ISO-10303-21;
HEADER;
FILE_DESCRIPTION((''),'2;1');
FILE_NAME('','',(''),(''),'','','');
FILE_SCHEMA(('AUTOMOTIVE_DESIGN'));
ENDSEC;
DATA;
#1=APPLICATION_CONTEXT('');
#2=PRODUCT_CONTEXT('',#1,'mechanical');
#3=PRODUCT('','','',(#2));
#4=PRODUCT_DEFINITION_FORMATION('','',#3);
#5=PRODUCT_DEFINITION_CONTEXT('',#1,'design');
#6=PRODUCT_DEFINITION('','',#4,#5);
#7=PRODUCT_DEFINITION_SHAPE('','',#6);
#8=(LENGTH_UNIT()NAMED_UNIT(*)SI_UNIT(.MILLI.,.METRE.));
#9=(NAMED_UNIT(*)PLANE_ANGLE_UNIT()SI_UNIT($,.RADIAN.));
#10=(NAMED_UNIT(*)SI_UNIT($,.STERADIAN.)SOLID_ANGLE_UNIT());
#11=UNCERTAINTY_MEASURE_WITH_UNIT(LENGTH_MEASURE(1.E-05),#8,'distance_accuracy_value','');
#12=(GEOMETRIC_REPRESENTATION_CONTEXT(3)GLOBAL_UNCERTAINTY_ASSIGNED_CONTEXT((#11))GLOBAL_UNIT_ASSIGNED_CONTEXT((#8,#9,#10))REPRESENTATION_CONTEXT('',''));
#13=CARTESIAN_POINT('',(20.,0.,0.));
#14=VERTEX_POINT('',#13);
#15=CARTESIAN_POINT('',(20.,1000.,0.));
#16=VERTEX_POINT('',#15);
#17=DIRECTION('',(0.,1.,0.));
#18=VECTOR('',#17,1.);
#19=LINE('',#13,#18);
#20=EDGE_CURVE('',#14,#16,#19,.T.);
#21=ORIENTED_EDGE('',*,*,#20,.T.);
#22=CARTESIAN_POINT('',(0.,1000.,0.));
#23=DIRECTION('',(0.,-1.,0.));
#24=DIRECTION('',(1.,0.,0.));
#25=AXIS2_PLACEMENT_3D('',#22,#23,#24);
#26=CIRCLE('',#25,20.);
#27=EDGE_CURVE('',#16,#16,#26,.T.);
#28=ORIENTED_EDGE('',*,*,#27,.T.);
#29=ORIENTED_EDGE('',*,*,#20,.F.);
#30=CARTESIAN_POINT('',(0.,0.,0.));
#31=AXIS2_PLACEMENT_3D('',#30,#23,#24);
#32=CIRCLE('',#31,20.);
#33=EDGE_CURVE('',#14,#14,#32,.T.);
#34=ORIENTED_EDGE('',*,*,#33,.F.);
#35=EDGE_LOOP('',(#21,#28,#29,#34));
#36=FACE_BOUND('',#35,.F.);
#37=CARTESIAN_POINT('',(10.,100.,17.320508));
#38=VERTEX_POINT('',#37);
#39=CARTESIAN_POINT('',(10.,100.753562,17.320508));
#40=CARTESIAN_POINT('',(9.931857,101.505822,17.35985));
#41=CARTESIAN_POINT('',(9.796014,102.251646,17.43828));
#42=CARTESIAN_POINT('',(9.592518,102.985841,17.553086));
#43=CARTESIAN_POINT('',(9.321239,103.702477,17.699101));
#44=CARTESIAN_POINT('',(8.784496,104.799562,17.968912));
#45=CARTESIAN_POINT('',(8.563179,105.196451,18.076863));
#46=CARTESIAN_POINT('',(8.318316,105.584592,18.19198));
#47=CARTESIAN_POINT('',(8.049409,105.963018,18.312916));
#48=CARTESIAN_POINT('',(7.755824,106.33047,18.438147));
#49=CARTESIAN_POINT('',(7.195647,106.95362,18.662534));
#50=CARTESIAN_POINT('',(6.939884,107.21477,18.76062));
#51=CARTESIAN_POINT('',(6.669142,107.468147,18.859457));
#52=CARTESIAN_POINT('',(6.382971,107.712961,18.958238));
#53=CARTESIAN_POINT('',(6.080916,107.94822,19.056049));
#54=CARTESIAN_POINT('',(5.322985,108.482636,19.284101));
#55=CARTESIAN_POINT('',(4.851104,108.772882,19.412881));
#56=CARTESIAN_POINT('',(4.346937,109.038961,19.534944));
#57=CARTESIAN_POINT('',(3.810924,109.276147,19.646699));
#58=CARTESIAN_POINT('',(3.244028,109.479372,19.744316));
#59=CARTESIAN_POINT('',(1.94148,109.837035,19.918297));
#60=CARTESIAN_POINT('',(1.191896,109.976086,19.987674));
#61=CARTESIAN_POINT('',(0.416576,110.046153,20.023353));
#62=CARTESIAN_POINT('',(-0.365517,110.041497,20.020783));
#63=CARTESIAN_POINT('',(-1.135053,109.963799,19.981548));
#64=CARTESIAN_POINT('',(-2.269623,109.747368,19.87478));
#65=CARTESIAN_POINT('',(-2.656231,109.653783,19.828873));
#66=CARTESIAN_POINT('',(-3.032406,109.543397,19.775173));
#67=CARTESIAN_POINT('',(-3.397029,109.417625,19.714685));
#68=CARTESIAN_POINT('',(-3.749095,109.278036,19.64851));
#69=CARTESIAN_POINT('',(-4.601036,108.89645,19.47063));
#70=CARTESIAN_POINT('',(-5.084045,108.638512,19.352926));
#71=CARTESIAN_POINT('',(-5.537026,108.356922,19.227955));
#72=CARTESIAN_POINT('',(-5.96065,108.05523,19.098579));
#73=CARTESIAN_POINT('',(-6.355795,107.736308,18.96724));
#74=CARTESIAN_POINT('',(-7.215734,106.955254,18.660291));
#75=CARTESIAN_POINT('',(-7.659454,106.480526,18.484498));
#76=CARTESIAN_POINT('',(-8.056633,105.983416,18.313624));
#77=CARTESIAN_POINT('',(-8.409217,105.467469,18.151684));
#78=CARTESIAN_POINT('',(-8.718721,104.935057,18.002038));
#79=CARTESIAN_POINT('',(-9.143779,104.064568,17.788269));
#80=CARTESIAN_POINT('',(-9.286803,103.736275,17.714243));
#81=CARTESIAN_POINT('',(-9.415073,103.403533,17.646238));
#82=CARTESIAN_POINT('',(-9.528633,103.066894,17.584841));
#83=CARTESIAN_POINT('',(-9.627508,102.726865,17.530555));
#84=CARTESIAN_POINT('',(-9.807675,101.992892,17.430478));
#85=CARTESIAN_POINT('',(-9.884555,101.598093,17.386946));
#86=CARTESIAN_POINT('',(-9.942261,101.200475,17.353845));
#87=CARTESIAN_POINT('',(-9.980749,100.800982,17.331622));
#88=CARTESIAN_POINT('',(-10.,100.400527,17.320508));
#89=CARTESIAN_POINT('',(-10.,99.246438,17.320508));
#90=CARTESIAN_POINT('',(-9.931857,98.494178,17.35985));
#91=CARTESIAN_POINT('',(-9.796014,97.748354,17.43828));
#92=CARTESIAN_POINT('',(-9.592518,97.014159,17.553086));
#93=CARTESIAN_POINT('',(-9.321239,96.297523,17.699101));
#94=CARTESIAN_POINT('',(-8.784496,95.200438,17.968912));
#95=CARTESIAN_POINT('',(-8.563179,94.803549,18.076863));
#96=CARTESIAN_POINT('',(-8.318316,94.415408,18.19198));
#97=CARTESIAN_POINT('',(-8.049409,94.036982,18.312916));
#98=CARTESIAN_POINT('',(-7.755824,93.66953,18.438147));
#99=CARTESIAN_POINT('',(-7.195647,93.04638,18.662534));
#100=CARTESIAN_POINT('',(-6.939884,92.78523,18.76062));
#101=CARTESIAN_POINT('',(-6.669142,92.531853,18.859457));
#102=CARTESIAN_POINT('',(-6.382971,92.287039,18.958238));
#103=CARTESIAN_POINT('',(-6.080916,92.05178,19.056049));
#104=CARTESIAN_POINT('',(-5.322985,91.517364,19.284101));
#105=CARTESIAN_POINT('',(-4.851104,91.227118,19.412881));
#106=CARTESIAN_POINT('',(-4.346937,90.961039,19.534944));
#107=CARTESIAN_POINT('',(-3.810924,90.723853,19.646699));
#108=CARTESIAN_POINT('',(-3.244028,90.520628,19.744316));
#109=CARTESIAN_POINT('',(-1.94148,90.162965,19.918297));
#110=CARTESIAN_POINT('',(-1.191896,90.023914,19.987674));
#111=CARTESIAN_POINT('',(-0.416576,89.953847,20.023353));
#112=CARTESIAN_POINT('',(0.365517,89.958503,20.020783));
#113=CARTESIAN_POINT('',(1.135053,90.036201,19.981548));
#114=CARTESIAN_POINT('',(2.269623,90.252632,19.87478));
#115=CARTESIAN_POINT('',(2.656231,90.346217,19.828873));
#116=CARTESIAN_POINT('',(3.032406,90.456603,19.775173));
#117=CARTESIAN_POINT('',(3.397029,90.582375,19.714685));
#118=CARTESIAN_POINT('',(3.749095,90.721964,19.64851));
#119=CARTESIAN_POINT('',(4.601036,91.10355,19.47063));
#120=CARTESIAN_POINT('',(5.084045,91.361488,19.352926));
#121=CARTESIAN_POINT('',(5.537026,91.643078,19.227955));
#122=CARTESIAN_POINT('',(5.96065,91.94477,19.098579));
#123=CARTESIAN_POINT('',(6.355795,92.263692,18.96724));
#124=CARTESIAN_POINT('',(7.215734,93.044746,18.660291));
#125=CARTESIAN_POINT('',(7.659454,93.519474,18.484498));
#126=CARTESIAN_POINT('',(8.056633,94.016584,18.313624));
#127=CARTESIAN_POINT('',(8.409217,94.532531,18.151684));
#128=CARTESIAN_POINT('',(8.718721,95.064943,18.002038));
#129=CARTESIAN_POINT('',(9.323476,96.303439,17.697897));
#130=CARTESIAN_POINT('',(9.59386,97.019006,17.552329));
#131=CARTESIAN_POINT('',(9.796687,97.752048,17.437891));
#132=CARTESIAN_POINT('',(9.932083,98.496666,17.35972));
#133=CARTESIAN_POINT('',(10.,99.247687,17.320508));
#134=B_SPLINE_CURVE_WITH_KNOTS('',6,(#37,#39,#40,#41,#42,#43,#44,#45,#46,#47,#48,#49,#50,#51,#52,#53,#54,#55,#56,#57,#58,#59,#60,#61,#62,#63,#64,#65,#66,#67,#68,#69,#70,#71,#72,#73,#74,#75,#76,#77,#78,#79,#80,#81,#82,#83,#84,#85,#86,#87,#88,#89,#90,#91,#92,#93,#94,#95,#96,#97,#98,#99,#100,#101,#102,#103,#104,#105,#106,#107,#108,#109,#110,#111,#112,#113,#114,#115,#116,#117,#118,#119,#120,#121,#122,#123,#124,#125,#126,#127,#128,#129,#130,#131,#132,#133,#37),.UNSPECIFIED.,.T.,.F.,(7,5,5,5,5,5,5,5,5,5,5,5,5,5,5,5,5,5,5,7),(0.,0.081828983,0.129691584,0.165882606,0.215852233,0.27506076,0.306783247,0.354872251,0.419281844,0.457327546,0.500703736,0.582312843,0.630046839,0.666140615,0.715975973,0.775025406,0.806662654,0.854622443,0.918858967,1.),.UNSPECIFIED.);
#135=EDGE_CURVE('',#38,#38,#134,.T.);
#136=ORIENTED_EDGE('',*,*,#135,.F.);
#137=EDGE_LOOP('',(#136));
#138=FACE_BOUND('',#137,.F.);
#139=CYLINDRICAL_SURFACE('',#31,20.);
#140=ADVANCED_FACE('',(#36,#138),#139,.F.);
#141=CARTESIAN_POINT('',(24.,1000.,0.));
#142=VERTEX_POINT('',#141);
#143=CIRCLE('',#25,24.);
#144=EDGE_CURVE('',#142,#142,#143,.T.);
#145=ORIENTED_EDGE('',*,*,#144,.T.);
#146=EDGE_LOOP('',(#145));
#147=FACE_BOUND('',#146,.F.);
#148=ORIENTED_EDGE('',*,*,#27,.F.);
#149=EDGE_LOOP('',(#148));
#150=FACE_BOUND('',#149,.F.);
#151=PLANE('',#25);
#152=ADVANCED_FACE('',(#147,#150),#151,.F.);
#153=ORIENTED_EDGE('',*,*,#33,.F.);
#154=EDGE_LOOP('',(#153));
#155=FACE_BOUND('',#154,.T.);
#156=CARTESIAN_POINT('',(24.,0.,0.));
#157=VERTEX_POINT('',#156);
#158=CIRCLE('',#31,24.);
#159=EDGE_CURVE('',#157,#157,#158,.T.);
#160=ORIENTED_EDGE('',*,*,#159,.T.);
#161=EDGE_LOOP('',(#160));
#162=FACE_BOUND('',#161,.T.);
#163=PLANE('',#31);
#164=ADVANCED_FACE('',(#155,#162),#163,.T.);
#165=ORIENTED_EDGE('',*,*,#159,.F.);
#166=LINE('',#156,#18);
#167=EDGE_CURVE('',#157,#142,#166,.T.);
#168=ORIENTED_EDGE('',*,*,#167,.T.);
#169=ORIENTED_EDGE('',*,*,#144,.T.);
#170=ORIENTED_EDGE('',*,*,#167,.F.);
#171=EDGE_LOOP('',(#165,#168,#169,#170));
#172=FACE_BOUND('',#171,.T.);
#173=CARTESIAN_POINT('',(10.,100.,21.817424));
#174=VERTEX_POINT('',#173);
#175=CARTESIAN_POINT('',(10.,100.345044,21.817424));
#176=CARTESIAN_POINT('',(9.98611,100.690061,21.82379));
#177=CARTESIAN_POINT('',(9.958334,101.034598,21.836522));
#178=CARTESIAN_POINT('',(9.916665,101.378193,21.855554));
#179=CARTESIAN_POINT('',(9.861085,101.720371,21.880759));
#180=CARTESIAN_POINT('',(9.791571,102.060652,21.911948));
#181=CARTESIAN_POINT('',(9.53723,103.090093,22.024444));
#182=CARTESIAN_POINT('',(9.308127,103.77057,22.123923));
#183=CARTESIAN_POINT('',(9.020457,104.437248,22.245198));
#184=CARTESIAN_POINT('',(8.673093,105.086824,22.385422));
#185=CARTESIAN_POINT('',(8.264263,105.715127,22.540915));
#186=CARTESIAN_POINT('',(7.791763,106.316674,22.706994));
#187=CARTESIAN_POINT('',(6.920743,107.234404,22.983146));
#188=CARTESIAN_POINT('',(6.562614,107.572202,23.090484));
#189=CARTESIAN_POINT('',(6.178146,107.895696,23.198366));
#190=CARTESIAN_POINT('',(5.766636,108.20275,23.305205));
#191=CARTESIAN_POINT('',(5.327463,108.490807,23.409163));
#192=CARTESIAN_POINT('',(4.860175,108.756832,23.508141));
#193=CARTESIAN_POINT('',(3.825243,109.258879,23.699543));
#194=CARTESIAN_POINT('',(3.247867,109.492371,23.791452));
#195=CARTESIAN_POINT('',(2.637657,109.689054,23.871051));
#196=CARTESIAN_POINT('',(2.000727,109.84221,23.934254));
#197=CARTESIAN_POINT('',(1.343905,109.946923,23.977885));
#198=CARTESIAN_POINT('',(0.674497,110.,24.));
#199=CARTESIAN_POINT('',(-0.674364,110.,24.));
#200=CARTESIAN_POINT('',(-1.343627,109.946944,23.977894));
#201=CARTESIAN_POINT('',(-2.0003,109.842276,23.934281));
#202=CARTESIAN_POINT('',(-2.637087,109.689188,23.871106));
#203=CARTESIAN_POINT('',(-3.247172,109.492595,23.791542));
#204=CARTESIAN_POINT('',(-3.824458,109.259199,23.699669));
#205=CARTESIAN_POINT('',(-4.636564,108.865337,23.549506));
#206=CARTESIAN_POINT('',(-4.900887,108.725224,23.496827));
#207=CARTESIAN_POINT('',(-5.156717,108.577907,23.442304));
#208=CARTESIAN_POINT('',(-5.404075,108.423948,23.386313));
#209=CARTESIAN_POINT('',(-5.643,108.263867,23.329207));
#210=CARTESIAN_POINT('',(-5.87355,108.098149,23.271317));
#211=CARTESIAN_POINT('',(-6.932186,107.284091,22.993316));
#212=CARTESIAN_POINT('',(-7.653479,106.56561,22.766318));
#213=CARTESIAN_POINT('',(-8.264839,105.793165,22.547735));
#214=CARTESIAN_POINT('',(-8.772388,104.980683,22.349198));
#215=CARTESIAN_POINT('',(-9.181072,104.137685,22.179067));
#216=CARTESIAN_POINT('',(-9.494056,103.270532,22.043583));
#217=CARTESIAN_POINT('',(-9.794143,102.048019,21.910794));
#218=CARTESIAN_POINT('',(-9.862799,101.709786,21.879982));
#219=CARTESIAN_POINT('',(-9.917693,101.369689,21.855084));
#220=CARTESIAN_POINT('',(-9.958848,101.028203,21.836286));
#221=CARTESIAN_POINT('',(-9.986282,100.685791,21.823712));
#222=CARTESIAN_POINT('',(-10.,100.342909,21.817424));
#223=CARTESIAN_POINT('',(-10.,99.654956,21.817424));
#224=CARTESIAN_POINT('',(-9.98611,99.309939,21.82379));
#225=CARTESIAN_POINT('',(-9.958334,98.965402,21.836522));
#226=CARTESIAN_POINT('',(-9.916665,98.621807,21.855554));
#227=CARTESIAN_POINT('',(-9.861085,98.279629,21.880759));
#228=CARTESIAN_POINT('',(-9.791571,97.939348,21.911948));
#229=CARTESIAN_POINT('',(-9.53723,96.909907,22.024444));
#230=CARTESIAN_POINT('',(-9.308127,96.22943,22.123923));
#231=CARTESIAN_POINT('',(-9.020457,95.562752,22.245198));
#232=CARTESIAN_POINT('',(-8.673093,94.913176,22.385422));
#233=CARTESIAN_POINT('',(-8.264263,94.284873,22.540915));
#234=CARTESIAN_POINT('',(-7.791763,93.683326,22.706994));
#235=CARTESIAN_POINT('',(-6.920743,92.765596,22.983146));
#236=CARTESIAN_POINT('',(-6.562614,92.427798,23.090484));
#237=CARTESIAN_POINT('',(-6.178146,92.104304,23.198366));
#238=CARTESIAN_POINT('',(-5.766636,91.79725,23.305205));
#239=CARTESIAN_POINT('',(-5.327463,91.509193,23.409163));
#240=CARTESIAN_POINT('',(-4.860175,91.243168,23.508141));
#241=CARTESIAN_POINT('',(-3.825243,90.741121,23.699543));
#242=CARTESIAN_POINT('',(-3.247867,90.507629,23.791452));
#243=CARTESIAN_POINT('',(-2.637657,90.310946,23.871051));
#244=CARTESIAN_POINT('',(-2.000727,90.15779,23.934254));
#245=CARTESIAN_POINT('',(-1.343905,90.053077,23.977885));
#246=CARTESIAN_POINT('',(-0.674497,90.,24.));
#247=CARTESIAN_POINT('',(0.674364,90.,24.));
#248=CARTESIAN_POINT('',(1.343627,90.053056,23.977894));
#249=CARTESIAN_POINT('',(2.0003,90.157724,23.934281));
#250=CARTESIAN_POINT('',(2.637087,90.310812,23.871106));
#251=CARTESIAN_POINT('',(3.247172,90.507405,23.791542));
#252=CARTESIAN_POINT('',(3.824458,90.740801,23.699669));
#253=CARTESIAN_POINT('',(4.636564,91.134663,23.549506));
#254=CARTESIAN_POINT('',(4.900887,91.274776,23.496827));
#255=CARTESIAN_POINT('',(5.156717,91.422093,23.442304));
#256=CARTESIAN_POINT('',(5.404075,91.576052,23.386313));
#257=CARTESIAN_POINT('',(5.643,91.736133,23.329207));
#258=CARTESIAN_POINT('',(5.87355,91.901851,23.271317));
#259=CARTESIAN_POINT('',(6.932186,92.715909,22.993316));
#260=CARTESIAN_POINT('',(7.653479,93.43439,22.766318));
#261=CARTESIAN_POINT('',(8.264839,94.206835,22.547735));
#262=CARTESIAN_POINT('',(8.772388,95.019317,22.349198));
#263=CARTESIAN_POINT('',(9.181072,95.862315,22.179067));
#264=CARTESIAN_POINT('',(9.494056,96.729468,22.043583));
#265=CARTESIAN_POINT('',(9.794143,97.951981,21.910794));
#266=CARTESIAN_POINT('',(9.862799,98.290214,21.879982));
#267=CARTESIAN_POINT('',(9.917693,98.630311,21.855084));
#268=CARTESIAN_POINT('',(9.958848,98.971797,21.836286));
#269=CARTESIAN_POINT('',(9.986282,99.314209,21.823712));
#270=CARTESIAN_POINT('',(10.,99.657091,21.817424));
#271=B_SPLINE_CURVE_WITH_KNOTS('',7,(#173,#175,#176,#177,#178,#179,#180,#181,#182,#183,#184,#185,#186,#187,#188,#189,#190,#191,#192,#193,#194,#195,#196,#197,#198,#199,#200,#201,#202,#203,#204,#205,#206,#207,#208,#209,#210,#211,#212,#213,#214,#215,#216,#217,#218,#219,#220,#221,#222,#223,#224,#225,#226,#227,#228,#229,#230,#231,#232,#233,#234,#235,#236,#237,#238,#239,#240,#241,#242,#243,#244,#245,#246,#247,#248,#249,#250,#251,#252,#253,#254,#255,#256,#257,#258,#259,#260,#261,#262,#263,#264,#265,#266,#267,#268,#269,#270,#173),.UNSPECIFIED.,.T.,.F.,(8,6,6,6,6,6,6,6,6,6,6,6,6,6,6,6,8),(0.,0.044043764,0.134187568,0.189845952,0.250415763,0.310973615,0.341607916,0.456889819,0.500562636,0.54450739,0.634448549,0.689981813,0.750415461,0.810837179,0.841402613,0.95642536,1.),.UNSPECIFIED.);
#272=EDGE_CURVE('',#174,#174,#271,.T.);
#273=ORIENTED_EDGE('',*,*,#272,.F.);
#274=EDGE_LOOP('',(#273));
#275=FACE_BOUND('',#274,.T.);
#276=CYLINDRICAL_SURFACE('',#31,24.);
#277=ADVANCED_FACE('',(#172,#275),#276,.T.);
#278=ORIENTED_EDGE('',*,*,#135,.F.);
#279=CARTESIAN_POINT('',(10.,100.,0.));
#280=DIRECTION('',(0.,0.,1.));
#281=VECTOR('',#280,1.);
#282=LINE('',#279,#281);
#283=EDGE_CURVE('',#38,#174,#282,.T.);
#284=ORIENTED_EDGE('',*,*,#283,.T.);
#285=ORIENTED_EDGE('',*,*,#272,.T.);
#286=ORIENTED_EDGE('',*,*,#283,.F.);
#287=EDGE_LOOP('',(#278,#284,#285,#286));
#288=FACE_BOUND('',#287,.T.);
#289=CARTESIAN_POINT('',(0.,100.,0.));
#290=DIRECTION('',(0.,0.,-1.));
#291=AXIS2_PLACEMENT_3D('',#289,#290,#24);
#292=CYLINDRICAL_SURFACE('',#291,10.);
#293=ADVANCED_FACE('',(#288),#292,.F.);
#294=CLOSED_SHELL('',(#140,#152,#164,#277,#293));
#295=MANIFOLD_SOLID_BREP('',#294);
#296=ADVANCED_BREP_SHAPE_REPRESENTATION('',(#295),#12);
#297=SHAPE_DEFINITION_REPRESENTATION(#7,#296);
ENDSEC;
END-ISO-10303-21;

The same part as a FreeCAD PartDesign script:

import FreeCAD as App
import Part
import Sketcher

V = App.Vector

doc = App.newDocument("Part")
body = doc.addObject("PartDesign::Body", "Body")

# Sketch on XZ plane
sketch1 = body.newObject("Sketcher::SketchObject", "Sketch")
sketch1.AttachmentSupport = (doc.getObject("XZ_Plane"), [""])
sketch1.MapMode = "FlatFace"
sketch1.addGeometry(Part.Circle(V(0, 0, 0), V(0, 0, 1), 24), False)
sketch1.addConstraint(Sketcher.Constraint("Coincident", 0, 3, -1, 1))
sketch1.addConstraint(Sketcher.Constraint("Diameter", 0, 48.0))
pad1 = body.newObject("PartDesign::Pad", "Pad")
pad1.Profile = sketch1
pad1.Length = 1000
pad1.Reversed = True

# Sketch on XZ plane
sketch2 = body.newObject("Sketcher::SketchObject", "Sketch001")
sketch2.AttachmentSupport = (doc.getObject("XZ_Plane"), [""])
sketch2.MapMode = "FlatFace"
sketch2.addGeometry(Part.Circle(V(0, 0, 0), V(0, 0, 1), 20), False)
sketch2.addConstraint(Sketcher.Constraint("Coincident", 0, 3, -1, 1))
sketch2.addConstraint(Sketcher.Constraint("Diameter", 0, 40.0))
pocket1 = body.newObject("PartDesign::Pocket", "Pocket")
pocket1.Profile = sketch2
pocket1.Type = "ThroughAll"

# Sketch on XY plane
sketch3 = body.newObject("Sketcher::SketchObject", "Sketch002")
sketch3.AttachmentSupport = (doc.getObject("XY_Plane"), [""])
sketch3.MapMode = "FlatFace"
sketch3.addGeometry(Part.Circle(V(0, 100, 0), V(0, 0, 1), 10), False)
sketch3.addConstraint(Sketcher.Constraint("PointOnObject", 0, 3, -2))
sketch3.addConstraint(Sketcher.Constraint("Diameter", 0, 20.0))
sketch3.addConstraint(Sketcher.Constraint("DistanceY", -1, 1, 0, 3, 100.0))
pocket2 = body.newObject("PartDesign::Pocket", "Pocket001")
pocket2.Profile = sketch3
pocket2.Length = 25.4
pocket2.Reversed = True

doc.recompute()
